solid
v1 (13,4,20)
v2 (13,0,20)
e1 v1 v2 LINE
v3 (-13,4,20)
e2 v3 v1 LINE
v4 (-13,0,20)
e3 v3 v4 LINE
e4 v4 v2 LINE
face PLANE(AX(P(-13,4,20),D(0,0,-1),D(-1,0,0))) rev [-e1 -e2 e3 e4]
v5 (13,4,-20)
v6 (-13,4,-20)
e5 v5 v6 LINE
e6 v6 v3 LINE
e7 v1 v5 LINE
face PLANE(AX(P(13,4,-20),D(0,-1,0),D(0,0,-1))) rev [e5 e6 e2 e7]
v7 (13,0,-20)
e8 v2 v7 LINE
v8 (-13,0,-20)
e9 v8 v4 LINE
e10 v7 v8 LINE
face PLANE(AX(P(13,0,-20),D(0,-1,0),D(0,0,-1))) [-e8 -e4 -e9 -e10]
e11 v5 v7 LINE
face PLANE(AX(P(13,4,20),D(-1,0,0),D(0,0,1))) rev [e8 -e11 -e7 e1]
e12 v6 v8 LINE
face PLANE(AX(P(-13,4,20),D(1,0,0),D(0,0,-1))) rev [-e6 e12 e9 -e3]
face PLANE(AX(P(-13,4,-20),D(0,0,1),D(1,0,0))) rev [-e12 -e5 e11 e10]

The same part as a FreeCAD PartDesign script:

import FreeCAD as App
import Part
import Sketcher
from FreeCAD import Vector
Q = App.Units.Quantity

doc = App.newDocument("Part")
body = doc.addObject("PartDesign::Body", "Body")

# Sketch on XZ plane
sketch1 = doc.addObject("Sketcher::SketchObject", "Sketch")
body.addObject(sketch1)
sketch1.AttachmentSupport = (doc.XZ_Plane, [""])
sketch1.MapMode = "FlatFace"
sketch1.addGeometry([
    Part.LineSegment(Vector(-13, -20, 0), Vector(-13, 20, 0)),
    Part.LineSegment(Vector(-13, 20, 0), Vector(13, 20, 0)),
    Part.LineSegment(Vector(13, 20, 0), Vector(13, -20, 0)),
    Part.LineSegment(Vector(13, -20, 0), Vector(-13, -20, 0)),
], False)
sketch1.addConstraint([
    Sketcher.Constraint("Coincident", 0, 2, 1, 1),
    Sketcher.Constraint("Coincident", 1, 2, 2, 1),
    Sketcher.Constraint("Coincident", 2, 2, 3, 1),
    Sketcher.Constraint("Coincident", 3, 2, 0, 1),
    Sketcher.Constraint("Vertical", 0),
    Sketcher.Constraint("Horizontal", 1),
    Sketcher.Constraint("Vertical", 2),
    Sketcher.Constraint("Horizontal", 3),
    Sketcher.Constraint("Symmetric", 0, 2, 2, 2, -1, 1),
    Sketcher.Constraint("DistanceX", 1, 1, 1, 2, Q("26 mm")),
    Sketcher.Constraint("DistanceY", 0, 1, 0, 2, Q("40 mm")),
])
pad1 = doc.addObject("PartDesign::Pad", "Pad")
body.addObject(pad1)
pad1.Profile = sketch1
pad1.Length = 4
pad1.Reversed = True

doc.recompute()
